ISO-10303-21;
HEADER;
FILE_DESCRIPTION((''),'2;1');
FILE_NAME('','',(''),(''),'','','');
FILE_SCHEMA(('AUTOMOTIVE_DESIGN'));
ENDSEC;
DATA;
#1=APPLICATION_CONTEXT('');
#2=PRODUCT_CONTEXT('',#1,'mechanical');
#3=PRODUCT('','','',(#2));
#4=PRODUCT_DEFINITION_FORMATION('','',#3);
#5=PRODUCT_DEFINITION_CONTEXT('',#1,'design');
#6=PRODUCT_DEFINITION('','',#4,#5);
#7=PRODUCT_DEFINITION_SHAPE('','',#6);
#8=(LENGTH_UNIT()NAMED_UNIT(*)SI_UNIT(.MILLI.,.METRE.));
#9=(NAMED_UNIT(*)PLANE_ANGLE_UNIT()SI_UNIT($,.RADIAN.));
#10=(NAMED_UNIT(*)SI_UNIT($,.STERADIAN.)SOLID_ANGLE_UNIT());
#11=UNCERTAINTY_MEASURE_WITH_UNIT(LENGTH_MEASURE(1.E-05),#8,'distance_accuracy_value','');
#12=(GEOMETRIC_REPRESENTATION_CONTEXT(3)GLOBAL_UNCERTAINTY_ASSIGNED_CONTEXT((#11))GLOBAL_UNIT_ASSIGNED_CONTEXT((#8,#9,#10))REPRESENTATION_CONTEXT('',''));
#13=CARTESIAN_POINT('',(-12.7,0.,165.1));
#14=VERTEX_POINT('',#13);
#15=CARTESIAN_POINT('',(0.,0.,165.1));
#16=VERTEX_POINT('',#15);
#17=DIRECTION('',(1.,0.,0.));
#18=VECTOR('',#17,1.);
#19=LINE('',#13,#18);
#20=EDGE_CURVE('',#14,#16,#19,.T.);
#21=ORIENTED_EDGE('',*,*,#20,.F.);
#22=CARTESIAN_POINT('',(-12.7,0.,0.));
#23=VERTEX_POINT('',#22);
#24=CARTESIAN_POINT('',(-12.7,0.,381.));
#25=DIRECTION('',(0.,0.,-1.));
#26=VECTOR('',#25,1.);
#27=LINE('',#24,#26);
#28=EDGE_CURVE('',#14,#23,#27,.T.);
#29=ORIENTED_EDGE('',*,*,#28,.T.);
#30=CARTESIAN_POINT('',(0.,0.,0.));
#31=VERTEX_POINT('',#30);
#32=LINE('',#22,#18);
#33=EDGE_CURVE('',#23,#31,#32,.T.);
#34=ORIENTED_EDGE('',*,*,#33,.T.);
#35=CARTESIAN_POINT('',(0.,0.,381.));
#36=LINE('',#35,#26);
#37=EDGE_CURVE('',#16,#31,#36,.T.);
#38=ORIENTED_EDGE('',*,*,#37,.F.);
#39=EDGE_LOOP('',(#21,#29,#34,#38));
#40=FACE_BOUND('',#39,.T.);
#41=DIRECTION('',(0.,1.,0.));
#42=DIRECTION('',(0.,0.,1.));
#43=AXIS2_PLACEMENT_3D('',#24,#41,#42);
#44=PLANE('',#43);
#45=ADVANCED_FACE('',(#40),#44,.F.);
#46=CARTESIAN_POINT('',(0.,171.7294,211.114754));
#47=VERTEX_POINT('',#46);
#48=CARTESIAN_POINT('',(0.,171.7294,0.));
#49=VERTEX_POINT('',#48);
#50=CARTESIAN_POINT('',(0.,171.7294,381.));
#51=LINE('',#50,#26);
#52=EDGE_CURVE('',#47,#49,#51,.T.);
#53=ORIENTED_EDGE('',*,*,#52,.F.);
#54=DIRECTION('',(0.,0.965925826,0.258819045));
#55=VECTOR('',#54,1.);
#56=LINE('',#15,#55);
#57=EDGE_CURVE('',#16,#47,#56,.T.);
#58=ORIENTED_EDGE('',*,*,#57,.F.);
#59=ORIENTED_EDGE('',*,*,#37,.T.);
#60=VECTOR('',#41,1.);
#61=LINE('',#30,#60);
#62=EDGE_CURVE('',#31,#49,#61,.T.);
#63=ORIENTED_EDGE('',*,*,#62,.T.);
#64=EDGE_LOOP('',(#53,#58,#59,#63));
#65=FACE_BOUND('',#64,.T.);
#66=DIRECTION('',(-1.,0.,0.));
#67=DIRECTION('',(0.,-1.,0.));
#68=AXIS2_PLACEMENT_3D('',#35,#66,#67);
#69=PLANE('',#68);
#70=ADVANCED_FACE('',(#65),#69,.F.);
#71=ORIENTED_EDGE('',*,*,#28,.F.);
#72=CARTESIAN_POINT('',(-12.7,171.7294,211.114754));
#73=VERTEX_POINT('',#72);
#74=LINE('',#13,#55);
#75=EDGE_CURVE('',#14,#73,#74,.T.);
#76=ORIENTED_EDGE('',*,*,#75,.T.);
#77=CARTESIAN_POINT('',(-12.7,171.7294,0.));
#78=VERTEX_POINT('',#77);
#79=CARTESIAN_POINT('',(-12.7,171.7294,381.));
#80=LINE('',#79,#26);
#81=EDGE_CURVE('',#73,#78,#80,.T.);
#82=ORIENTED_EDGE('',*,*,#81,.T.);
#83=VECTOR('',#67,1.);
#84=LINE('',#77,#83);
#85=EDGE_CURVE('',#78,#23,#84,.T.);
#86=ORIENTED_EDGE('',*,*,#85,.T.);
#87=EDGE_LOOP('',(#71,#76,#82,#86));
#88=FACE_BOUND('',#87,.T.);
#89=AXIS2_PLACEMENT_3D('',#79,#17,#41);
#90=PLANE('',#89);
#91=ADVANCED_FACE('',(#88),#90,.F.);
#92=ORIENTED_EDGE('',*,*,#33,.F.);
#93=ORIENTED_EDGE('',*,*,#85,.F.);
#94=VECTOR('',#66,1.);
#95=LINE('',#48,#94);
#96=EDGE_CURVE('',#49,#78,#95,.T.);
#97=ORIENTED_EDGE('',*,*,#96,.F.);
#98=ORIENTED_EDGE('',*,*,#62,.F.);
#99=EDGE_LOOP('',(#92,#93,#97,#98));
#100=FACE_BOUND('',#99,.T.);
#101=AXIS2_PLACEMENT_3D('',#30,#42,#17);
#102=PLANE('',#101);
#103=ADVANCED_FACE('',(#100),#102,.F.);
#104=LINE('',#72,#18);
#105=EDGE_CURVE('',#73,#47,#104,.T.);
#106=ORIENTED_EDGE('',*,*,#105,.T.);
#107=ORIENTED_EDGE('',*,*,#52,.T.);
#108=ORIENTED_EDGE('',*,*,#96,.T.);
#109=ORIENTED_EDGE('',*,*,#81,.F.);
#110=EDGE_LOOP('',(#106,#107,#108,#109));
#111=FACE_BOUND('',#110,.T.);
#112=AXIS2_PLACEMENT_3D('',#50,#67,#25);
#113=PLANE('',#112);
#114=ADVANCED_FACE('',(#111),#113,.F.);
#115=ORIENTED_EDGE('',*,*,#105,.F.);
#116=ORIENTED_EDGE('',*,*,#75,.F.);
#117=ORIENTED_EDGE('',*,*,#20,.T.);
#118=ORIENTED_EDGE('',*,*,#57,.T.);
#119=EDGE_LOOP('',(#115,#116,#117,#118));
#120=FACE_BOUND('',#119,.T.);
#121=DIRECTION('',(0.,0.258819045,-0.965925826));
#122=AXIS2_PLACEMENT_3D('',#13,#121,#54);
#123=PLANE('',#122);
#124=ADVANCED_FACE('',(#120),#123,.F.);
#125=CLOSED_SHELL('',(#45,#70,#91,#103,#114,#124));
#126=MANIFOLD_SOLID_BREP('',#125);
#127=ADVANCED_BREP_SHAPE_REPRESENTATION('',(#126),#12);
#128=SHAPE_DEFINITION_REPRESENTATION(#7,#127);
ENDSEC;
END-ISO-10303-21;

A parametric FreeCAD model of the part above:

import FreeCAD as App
import Part
import Sketcher
from FreeCAD import Vector
Q = App.Units.Quantity

doc = App.newDocument("Part")
body = doc.addObject("PartDesign::Body", "Body")

sketch1 = body.newObject("Sketcher::SketchObject", "Sketch")
sketch1.AttachmentSupport = (doc.getObject("XY_Plane"), [""])
sketch1.MapMode = "FlatFace"
sketch1.addGeometry([
    Part.LineSegment(Vector(-13, 172, 0), Vector(-13, 0, 0)),
    Part.LineSegment(Vector(-13, 0, 0), Vector(0, 0, 0)),
    Part.LineSegment(Vector(0, 0, 0), Vector(0, 172, 0)),
    Part.LineSegment(Vector(0, 172, 0), Vector(-13, 172, 0)),
], False)
sketch1.addConstraint([
    Sketcher.Constraint("Coincident", 0, 2, 1, 1),
    Sketcher.Constraint("Coincident", 1, 2, 2, 1),
    Sketcher.Constraint("Coincident", 2, 2, 3, 1),
    Sketcher.Constraint("Coincident", 3, 2, 0, 1),
    Sketcher.Constraint("Vertical", 0),
    Sketcher.Constraint("Horizontal", 1),
    Sketcher.Constraint("Vertical", 2),
    Sketcher.Constraint("Horizontal", 3),
    Sketcher.Constraint("Coincident", 1, 2, -1, 1),
    Sketcher.Constraint("DistanceX", 1, 1, 1, 2, Q("0.5 in")),
    Sketcher.Constraint("DistanceY", 0, 2, 0, 1, Q("6.761 in")),
])
pad1 = body.newObject("PartDesign::Pad", "Pad")
pad1.Profile = sketch1
pad1.Length = Q("15 in")

sketch2 = body.newObject("Sketcher::SketchObject", "Sketch001")
sketch2.AttachmentSupport = (doc.getObject("YZ_Plane"), [""])
sketch2.MapMode = "FlatFace"
sketch2.addGeometry([
    Part.LineSegment(Vector(0, 165, 0), Vector(172, 211, 0)),
    Part.LineSegment(Vector(172, 211, 0), Vector(172, 381, 0)),
    Part.LineSegment(Vector(172, 381, 0), Vector(0, 381, 0)),
    Part.LineSegment(Vector(0, 381, 0), Vector(0, 165, 0)),
], False)
sketch2.addConstraint([
    Sketcher.Constraint("Coincident", 0, 2, 1, 1),
    Sketcher.Constraint("Coincident", 1, 2, 2, 1),
    Sketcher.Constraint("Coincident", 2, 2, 3, 1),
    Sketcher.Constraint("Coincident", 3, 2, 0, 1),
    Sketcher.Constraint("Vertical", 1),
    Sketcher.Constraint("Horizontal", 2),
    Sketcher.Constraint("Vertical", 3),
    Sketcher.Constraint("PointOnObject", 2, 2, -2),
    Sketcher.Constraint("DistanceY", 3, 2, 3, 1, Q("8.5 in")),
    Sketcher.Constraint("DistanceY", -1, 1, 1, 2, Q("15 in")),
    Sketcher.Constraint("Angle", 0, Q("15 deg")),
    Sketcher.Constraint("DistanceX", 2, 2, 2, 1, Q("6.761 in")),
])
pocket1 = body.newObject("PartDesign::Pocket", "Pocket")
pocket1.Profile = sketch2
pocket1.Type = "ThroughAll"

doc.recompute()
